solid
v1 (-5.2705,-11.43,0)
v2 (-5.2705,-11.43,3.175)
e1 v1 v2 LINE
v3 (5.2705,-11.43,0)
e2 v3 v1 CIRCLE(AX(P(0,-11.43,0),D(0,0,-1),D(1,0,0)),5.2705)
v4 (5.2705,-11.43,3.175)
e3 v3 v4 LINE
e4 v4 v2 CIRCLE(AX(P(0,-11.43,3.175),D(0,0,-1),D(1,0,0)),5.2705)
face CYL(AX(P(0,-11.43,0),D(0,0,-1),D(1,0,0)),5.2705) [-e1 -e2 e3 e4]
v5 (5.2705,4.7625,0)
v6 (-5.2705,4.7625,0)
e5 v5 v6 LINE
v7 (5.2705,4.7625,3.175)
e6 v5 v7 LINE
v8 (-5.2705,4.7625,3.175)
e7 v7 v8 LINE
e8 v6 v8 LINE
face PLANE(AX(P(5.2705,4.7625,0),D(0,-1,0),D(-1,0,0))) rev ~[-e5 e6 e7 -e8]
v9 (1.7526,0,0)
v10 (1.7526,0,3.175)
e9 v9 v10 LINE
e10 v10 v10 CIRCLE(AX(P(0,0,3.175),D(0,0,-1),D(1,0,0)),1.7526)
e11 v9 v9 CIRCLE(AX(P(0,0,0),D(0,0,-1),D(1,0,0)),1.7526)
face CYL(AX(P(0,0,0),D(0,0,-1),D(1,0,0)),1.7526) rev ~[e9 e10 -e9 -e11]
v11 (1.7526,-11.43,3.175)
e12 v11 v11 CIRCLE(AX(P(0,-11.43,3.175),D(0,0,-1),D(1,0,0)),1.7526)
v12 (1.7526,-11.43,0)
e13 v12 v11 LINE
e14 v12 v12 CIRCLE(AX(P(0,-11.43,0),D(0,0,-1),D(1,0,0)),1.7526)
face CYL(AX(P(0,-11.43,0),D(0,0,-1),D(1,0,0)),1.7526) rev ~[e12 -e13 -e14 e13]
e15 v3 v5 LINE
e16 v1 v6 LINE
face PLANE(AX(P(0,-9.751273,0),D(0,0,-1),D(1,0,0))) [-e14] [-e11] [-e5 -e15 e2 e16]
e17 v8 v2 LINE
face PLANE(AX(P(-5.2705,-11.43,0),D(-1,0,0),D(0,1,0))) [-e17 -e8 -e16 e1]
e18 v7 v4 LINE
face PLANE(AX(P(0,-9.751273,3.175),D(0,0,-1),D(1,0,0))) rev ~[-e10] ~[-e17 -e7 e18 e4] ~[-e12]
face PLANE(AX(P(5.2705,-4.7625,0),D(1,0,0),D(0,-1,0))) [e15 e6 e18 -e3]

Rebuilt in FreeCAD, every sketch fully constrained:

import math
import FreeCAD as App
import Part
import Sketcher
from FreeCAD import Vector
Q = App.Units.Quantity


def add_polygon(sketch, points):
    """Adds a closed chain of lines whose ends are joined by coincident constraints."""
    first, n = sketch.GeometryCount, len(points)
    for a, b in zip(points, points[1:] + points[:1]):
        sketch.addGeometry(Part.LineSegment(App.Vector(*a, 0), App.Vector(*b, 0)), False)
    for i in range(n):
        sketch.addConstraint(Sketcher.Constraint("Coincident", first + i, 2, first + (i + 1) % n, 1))

doc = App.newDocument("Part")
params = doc.addObject("Spreadsheet::Sheet", "Params")
for row, (alias, value) in enumerate([
    ("sketch1_width", "0.23 in"),
    ("sketch1_height", "0.25 in"),
    ("sketch1_width2", "0.415 in"),
    ("sketch1_height2", "0.0625 in"),
    ("pad1_length", "0.125 in"),
    ("sketch2_diameter", "0.138 in"),
    ("pad2_length", "0.125 in"),
    ("sketch3_diameter", "0.138 in"),
    ("pocket1_length", "1 in"),
    ("sketch4_width", "0.23 in"),
    ("sketch4_height", "0.25 in"),
    ("pocket2_length", "1 in"),
], start=1):
    params.set(f"A{row}", alias)
    params.set(f"B{row}", "=" + value)
    params.setAlias(f"B{row}", alias)

body = doc.addObject("PartDesign::Body", "Body")

sketch1 = body.newObject("Sketcher::SketchObject", "Sketch")
sketch1.AttachmentSupport = (doc.getObject("XY_Plane"), [""])
sketch1.MapMode = "FlatFace"
add_polygon(sketch1, [(-5.3, 3.2), (-11.1, 3.2), (-11.1, -3.2), (-5.3, -3.2), (-5.3, -4.8), (5.3, -4.8), (5.3, -3.2), (11.1, -3.2), (11.1, 3.2), (5.3, 3.2), (5.3, 4.8), (-5.3, 4.8)])
sketch1.addConstraint([
    Sketcher.Constraint("Horizontal", 0),
    Sketcher.Constraint("Vertical", 1),
    Sketcher.Constraint("Horizontal", 2),
    Sketcher.Constraint("Vertical", 3),
    Sketcher.Constraint("Horizontal", 4),
    Sketcher.Constraint("Vertical", 5),
    Sketcher.Constraint("Horizontal", 6),
    Sketcher.Constraint("Vertical", 7),
    Sketcher.Constraint("Horizontal", 8),
    Sketcher.Constraint("Vertical", 9),
    Sketcher.Constraint("Horizontal", 10),
    Sketcher.Constraint("Vertical", 11),
    Sketcher.Constraint("Symmetric", 0, 2, 6, 2, -1, 1),
    Sketcher.Constraint("Symmetric", 2, 2, 8, 2, -1, 1),
    Sketcher.Constraint("Symmetric", 4, 2, 10, 2, -1, 1),
    Sketcher.Constraint("Symmetric", 2, 2, 5, 2, -2),
    Sketcher.Constraint("DistanceX", 0, 2, 0, 1, Q("0.23 in")),
    Sketcher.Constraint("DistanceY", 1, 2, 1, 1, Q("0.25 in")),
    Sketcher.Constraint("DistanceX", 4, 1, 4, 2, Q("0.415 in")),
    Sketcher.Constraint("DistanceY", 3, 2, 3, 1, Q("0.0625 in")),
])
sketch1.setExpression("Constraints[28]", "Params.sketch1_width")
sketch1.setExpression("Constraints[29]", "Params.sketch1_height")
sketch1.setExpression("Constraints[30]", "Params.sketch1_width2")
sketch1.setExpression("Constraints[31]", "Params.sketch1_height2")
pad1 = body.newObject("PartDesign::Pad", "Pad")
pad1.Profile = sketch1
pad1.setExpression("Length", "Params.pad1_length")

sketch2 = body.newObject("Sketcher::SketchObject", "Sketch001")
sketch2.AttachmentSupport = (doc.getObject("XY_Plane"), [""])
sketch2.MapMode = "FlatFace"
sketch2.addGeometry([
    Part.LineSegment(Vector(5.3, -4.8, 0), Vector(5.3, -11.4, 0)),
    Part.ArcOfCircle(Part.Circle(Vector(0, -11.4, 0), Vector(0, 0, 1), 5.3), math.radians(180), math.radians(360)),
    Part.LineSegment(Vector(-5.3, -11.4, 0), Vector(-5.3, -4.8, 0)),
    Part.LineSegment(Vector(-5.3, -4.8, 0), Vector(5.3, -4.8, 0)),
    Part.Circle(Vector(0, -11.4, 0), Vector(0, 0, 1), 1.8),
], False)
sketch2.addConstraint([
    Sketcher.Constraint("Tangent", 0, 2, 1, 2),
    Sketcher.Constraint("Tangent", 1, 1, 2, 1),
    Sketcher.Constraint("Coincident", 2, 2, 3, 1),
    Sketcher.Constraint("Coincident", 3, 2, 0, 1),
    Sketcher.Constraint("Vertical", 0),
    Sketcher.Constraint("Vertical", 2),
    Sketcher.Constraint("Horizontal", 3),
    Sketcher.Constraint("Coincident", 4, 3, 1, 3),
    Sketcher.Constraint("PointOnObject", 1, 3, -2),
    Sketcher.Constraint("Diameter", 4, Q("0.138 in")),
    Sketcher.Constraint("Radius", 1, Q("0.2075 in")),
    Sketcher.Constraint("DistanceY", 1, 3, -1, 1, Q("0.45 in")),
    Sketcher.Constraint("DistanceY", 0, 2, 0, 1, Q("0.2625 in")),
])
sketch2.setExpression("Constraints[9]", "Params.sketch2_diameter")
pad2 = body.newObject("PartDesign::Pad", "Pad001")
pad2.Profile = sketch2
pad2.setExpression("Length", "Params.pad2_length")

sketch3 = body.newObject("Sketcher::SketchObject", "Sketch002")
sketch3.AttachmentSupport = (doc.getObject("XY_Plane"), [""])
sketch3.MapMode = "FlatFace"
sketch3.addGeometry(Part.Circle(Vector(0, 0, 0), Vector(0, 0, 1), 1.8), False)
sketch3.addConstraint([
    Sketcher.Constraint("Coincident", 0, 3, -1, 1),
    Sketcher.Constraint("Diameter", 0, Q("0.138 in")),
])
sketch3.setExpression("Constraints[1]", "Params.sketch3_diameter")
pocket1 = body.newObject("PartDesign::Pocket", "Pocket")
pocket1.Profile = sketch3
pocket1.setExpression("Length", "Params.pocket1_length")
pocket1.Reversed = True

sketch4 = body.newObject("Sketcher::SketchObject", "Sketch003")
sketch4.AttachmentSupport = (doc.getObject("XY_Plane"), [""])
sketch4.MapMode = "FlatFace"
sketch4.AttachmentOffset = App.Placement(Vector(0, 0, 0.125 * 25.4), App.Rotation())
add_polygon(sketch4, [(-11, 3), (-11, -3), (-5, -3), (-5, 3)])
add_polygon(sketch4, [(5, 3), (5, -3), (11, -3), (11, 3)])
sketch4.addConstraint([
    Sketcher.Constraint("Vertical", 0),
    Sketcher.Constraint("Horizontal", 1),
    Sketcher.Constraint("Vertical", 2),
    Sketcher.Constraint("Horizontal", 3),
    Sketcher.Constraint("Vertical", 4),
    Sketcher.Constraint("Horizontal", 5),
    Sketcher.Constraint("Vertical", 6),
    Sketcher.Constraint("Horizontal", 7),
    Sketcher.Constraint("Symmetric", 2, 2, 4, 2, -1, 1),
    Sketcher.Constraint("Symmetric", 0, 2, 6, 2, -1, 1),
    Sketcher.Constraint("Horizontal", 1, 2, 4, 2),
    Sketcher.Constraint("DistanceX", 1, 1, 1, 2, Q("0.23 in")),
    Sketcher.Constraint("DistanceY", 0, 2, 0, 1, Q("0.25 in")),
    Sketcher.Constraint("DistanceX", 0, 2, -1, 1, Q("0.4375 in")),
])
sketch4.setExpression("Constraints[19]", "Params.sketch4_width")
sketch4.setExpression("Constraints[20]", "Params.sketch4_height")
pocket2 = body.newObject("PartDesign::Pocket", "Pocket001")
pocket2.Profile = sketch4
pocket2.setExpression("Length", "Params.pocket2_length")

doc.recompute()
